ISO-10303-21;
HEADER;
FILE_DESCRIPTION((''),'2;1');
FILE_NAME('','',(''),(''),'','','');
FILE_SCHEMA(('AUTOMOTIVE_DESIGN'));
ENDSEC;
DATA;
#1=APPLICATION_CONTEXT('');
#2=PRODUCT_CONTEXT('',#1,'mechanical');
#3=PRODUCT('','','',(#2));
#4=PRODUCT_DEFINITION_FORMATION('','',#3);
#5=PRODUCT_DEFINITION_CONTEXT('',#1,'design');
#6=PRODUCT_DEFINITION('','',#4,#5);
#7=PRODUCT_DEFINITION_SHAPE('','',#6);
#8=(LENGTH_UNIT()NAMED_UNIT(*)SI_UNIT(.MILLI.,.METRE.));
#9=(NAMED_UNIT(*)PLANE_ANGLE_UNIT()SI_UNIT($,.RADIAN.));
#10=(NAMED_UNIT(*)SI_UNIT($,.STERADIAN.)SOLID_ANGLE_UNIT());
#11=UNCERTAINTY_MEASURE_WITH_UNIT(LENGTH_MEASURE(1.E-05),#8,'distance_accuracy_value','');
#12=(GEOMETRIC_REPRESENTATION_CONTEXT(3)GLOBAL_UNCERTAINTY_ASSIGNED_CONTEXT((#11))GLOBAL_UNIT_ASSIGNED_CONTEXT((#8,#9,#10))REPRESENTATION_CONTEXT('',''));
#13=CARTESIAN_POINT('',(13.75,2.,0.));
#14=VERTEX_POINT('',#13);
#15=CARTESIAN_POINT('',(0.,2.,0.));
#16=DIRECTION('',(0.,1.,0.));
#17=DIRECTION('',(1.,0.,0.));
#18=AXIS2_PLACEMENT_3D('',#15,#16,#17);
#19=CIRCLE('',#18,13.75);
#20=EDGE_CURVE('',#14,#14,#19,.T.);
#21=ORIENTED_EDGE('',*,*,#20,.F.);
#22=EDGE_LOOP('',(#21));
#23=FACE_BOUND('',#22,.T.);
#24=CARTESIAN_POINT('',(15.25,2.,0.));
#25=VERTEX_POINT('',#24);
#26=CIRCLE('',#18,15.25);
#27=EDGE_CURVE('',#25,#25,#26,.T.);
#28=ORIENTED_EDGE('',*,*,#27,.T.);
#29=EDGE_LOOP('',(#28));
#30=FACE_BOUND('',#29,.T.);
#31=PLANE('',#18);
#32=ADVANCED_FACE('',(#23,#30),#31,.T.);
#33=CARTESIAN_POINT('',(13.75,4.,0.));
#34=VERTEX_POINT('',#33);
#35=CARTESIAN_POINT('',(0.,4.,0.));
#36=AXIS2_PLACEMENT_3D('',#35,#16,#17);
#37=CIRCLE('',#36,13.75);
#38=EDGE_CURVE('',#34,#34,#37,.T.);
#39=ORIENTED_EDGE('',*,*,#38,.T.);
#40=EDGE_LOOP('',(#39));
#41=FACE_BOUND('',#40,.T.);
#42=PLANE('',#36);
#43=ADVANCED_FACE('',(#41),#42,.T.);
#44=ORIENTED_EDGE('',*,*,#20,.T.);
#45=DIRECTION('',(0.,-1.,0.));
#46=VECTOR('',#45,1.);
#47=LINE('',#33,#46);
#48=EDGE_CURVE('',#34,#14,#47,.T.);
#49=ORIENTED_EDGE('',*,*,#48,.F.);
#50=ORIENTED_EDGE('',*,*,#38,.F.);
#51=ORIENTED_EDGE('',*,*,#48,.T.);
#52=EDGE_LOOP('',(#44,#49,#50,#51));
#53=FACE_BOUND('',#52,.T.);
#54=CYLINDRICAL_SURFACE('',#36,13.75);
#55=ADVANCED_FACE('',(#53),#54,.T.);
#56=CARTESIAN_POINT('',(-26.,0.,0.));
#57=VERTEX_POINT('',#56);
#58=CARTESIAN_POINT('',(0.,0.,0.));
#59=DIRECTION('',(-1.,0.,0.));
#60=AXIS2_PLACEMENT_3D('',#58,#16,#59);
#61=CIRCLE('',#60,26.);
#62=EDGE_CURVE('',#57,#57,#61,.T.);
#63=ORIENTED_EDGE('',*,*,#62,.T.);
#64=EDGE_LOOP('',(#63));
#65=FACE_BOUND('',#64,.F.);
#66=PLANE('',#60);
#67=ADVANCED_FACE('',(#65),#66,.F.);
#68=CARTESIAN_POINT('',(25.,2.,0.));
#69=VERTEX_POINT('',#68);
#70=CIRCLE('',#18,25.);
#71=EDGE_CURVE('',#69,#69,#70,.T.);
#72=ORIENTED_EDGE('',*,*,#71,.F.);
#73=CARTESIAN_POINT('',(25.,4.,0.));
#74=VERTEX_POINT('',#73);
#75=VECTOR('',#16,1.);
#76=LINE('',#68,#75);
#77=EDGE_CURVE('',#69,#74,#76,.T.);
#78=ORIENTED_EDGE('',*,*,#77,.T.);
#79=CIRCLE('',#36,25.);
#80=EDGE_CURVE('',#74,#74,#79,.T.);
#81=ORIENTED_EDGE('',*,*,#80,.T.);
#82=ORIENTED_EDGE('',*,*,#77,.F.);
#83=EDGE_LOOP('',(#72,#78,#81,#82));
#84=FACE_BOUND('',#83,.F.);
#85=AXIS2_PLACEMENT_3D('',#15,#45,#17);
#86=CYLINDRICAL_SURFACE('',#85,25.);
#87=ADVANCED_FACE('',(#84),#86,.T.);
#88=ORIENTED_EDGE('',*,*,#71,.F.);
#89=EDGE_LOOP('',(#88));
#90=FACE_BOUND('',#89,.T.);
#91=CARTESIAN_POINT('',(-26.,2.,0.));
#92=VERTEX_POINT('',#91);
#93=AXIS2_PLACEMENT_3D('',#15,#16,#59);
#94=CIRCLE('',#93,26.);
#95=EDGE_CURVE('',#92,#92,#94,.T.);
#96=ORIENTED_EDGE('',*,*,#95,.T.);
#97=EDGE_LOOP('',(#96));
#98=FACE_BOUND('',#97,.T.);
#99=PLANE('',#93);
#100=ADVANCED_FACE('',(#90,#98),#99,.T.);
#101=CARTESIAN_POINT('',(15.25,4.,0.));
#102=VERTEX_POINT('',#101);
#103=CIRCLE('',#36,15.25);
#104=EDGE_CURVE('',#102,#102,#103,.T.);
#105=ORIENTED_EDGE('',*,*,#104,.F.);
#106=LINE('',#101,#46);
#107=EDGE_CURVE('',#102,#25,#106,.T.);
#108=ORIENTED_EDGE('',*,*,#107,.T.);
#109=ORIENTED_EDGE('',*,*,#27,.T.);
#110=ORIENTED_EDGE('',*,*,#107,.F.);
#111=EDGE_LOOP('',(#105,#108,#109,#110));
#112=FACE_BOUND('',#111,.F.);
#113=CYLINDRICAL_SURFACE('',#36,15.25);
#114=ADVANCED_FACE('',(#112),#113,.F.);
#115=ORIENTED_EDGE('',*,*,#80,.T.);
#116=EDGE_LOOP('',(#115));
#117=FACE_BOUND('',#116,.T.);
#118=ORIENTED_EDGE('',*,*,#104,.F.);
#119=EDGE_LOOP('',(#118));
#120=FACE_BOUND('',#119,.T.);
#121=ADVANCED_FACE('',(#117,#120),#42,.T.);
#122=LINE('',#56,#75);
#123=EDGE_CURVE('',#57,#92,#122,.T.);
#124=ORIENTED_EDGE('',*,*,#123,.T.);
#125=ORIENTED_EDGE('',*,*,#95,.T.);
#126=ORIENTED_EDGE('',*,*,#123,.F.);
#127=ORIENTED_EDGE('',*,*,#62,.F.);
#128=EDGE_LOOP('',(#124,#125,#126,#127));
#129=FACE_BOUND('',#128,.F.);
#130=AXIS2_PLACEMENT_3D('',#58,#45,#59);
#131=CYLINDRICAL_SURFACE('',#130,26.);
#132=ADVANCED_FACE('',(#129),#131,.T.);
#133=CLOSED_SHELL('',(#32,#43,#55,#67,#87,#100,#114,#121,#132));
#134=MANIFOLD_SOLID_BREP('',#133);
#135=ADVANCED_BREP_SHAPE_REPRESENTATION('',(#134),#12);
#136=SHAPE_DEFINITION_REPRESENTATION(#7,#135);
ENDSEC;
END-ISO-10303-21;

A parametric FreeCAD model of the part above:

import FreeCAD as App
import Part
import Sketcher
from FreeCAD import Vector

doc = App.newDocument("Part")
body = doc.addObject("PartDesign::Body", "Body")

sketch1 = body.newObject("Sketcher::SketchObject", "Sketch")
sketch1.AttachmentSupport = (doc.getObject("XZ_Plane"), [""])
sketch1.MapMode = "FlatFace"
sketch1.addGeometry(Part.Circle(Vector(0, 0, 0), Vector(0, 0, 1), 26), False)
sketch1.addConstraint(Sketcher.Constraint("Coincident", 0, 3, -1, 1))
sketch1.addConstraint(Sketcher.Constraint("Diameter", 0, 52.0))
pad1 = body.newObject("PartDesign::Pad", "Pad")
pad1.Profile = sketch1
pad1.Length = 2
pad1.Reversed = True

sketch2 = body.newObject("Sketcher::SketchObject", "Sketch001")
sketch2.AttachmentSupport = (doc.getObject("XZ_Plane"), [""])
sketch2.MapMode = "FlatFace"
sketch2.AttachmentOffset = App.Placement(Vector(0, 0, -2), App.Rotation())
sketch2.addGeometry(Part.Circle(Vector(0, 0, 0), Vector(0, 0, 1), 25), False)
sketch2.addConstraint(Sketcher.Constraint("Coincident", 0, 3, -1, 1))
sketch2.addConstraint(Sketcher.Constraint("Diameter", 0, 50.0))
pad2 = body.newObject("PartDesign::Pad", "Pad001")
pad2.Profile = sketch2
pad2.Length = 2
pad2.Reversed = True

sketch3 = body.newObject("Sketcher::SketchObject", "Sketch002")
sketch3.AttachmentSupport = (doc.getObject("XZ_Plane"), [""])
sketch3.MapMode = "FlatFace"
sketch3.AttachmentOffset = App.Placement(Vector(0, 0, -4), App.Rotation())
sketch3.addGeometry(Part.Circle(Vector(0, 0, 0), Vector(0, 0, 1), 15), False)
sketch3.addGeometry(Part.Circle(Vector(0, 0, 0), Vector(0, 0, 1), 14), False)
sketch3.addConstraint(Sketcher.Constraint("Coincident", 0, 3, -1, 1))
sketch3.addConstraint(Sketcher.Constraint("Coincident", 1, 3, -1, 1))
sketch3.addConstraint(Sketcher.Constraint("Diameter", 0, 30.5))
sketch3.addConstraint(Sketcher.Constraint("Diameter", 1, 27.5))
pocket1 = body.newObject("PartDesign::Pocket", "Pocket")
pocket1.Profile = sketch3
pocket1.Length = 2
pocket1.Reversed = True

doc.recompute()
